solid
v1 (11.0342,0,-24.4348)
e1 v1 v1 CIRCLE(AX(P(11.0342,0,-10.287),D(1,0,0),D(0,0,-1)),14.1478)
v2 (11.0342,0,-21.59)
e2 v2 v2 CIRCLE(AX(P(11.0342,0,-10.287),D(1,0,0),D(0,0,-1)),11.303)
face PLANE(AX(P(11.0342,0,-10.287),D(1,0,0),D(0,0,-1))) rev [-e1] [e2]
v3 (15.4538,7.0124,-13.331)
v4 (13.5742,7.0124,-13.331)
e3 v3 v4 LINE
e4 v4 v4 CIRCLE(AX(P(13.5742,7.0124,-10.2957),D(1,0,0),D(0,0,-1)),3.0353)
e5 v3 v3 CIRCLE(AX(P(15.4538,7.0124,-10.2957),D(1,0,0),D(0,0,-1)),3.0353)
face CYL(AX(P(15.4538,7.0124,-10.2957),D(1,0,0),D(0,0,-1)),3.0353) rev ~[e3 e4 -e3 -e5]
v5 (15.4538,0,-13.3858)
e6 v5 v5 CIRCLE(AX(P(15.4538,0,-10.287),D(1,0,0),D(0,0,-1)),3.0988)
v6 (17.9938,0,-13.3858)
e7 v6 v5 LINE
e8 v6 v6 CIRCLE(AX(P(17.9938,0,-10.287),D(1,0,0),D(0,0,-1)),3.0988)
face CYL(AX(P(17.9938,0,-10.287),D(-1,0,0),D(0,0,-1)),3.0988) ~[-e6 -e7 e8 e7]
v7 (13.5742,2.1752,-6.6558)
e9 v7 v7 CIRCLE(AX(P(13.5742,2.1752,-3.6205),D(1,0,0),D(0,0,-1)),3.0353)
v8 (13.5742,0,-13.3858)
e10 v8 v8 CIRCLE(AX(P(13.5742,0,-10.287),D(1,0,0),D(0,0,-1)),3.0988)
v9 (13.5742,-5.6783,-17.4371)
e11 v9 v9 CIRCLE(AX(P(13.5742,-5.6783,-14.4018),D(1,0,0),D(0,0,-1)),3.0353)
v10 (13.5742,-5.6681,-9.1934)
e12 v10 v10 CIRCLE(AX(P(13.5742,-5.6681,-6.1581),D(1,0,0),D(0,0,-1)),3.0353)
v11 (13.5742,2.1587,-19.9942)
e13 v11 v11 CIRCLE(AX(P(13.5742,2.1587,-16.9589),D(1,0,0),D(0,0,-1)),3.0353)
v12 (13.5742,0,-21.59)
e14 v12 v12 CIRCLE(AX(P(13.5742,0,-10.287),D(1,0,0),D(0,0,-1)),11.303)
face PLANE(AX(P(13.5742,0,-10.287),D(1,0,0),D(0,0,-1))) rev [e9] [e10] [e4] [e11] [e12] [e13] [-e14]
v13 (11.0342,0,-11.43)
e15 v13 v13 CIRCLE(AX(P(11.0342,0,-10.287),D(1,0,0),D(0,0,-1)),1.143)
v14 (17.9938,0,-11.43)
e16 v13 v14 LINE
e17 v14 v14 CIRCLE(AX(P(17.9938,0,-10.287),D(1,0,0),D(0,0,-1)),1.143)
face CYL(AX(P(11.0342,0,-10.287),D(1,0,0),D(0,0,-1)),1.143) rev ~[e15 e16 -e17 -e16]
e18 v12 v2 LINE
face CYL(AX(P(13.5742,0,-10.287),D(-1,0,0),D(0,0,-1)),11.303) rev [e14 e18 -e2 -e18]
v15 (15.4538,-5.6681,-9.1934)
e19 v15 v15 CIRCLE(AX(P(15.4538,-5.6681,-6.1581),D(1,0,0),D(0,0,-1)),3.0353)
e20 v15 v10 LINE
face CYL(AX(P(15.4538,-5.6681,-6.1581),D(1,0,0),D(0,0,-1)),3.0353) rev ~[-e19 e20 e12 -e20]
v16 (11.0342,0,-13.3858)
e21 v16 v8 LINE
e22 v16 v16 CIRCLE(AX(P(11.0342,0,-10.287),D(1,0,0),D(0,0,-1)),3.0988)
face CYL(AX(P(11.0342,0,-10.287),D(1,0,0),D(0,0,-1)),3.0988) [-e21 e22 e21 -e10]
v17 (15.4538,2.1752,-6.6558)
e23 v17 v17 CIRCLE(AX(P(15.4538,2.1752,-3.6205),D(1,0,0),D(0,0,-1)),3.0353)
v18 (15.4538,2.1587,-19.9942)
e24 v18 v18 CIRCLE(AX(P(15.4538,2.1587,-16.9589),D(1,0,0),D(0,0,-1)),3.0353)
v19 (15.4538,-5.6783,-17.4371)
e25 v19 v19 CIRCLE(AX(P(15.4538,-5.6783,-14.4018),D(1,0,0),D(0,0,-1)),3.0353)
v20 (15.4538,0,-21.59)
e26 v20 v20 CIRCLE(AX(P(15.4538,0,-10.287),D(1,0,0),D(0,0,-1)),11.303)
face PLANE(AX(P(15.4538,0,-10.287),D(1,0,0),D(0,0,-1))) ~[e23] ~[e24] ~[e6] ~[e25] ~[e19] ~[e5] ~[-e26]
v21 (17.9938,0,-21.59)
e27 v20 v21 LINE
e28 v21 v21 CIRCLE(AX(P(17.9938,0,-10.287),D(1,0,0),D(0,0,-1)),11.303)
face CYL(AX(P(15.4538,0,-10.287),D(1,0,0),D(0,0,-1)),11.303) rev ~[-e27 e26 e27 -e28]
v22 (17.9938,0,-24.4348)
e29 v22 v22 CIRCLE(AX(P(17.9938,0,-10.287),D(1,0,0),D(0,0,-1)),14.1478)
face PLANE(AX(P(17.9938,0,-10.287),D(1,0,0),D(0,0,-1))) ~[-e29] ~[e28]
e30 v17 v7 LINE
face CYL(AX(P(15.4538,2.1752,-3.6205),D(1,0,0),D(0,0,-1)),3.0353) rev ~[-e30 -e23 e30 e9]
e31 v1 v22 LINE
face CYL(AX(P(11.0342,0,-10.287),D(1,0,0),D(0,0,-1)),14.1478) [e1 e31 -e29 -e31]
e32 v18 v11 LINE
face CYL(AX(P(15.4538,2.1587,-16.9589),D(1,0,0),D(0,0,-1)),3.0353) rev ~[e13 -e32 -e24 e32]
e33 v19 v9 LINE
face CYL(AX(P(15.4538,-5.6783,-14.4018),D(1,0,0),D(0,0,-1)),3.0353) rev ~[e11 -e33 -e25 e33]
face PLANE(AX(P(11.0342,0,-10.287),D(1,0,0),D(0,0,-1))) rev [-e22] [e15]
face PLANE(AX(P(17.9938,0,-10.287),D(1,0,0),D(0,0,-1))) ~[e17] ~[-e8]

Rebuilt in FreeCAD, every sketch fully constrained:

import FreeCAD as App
import Part
import Sketcher
from FreeCAD import Vector
Q = App.Units.Quantity


def add_polygon(sketch, points):
    """Adds a closed chain of lines whose ends are joined by coincident constraints."""
    first, n = sketch.GeometryCount, len(points)
    for a, b in zip(points, points[1:] + points[:1]):
        sketch.addGeometry(Part.LineSegment(App.Vector(*a, 0), App.Vector(*b, 0)), False)
    for i in range(n):
        sketch.addConstraint(Sketcher.Constraint("Coincident", first + i, 2, first + (i + 1) % n, 1))

doc = App.newDocument("Part")
body = doc.addObject("PartDesign::Body", "Body")

# Sketch on XZ plane
sketch1 = body.newObject("Sketcher::SketchObject", "Sketch")
sketch1.AttachmentSupport = (doc.getObject("XZ_Plane"), [""])
sketch1.MapMode = "FlatFace"
add_polygon(sketch1, [(11, -13.4), (11, -11.4), (18, -11.4), (18, -13.4), (15.5, -13.4), (15.5, -21.6), (18, -21.6), (18, -24.4), (11, -24.4), (11, -21.6), (13.6, -21.6), (13.6, -13.4)])  # lines 0-11
sketch1.addGeometry(Part.LineSegment(Vector(11, -10.3, 0), Vector(18, -10.3, 0)), True)  # axis
sketch1.addConstraint([
    Sketcher.Constraint("Vertical", 0),
    Sketcher.Constraint("Horizontal", 1),
    Sketcher.Constraint("Vertical", 2),
    Sketcher.Constraint("Horizontal", 3),
    Sketcher.Constraint("Vertical", 4),
    Sketcher.Constraint("Horizontal", 5),
    Sketcher.Constraint("Vertical", 6),
    Sketcher.Constraint("Horizontal", 7),
    Sketcher.Constraint("Vertical", 8),
    Sketcher.Constraint("Horizontal", 9),
    Sketcher.Constraint("Vertical", 10),
    Sketcher.Constraint("Horizontal", 11),
    Sketcher.Constraint("Horizontal", 12),
    Sketcher.Constraint("Horizontal", 5, 2, 8, 2),
    Sketcher.Constraint("Horizontal", 3, 2, 10, 2),
    Sketcher.Constraint("Vertical", 2, 2, 5, 2),
    Sketcher.Constraint("Vertical", 0, 2, 7, 2),
    Sketcher.Constraint("Vertical", 11, 2, 12, 1),
    Sketcher.Constraint("Vertical", 6, 2, 12, 2),
    Sketcher.Constraint("Equal", 5, 9),
    Sketcher.Constraint("DistanceX", 3, 2, 3, 1, Q("0.1 in")),
    Sketcher.Constraint("DistanceX", 1, 1, 1, 2, Q("0.274 in")),
    Sketcher.Constraint("DistanceY", 0, 1, 0, 2, Q("0.077 in")),
    Sketcher.Constraint("DistanceY", 4, 2, 4, 1, Q("0.323 in")),
    Sketcher.Constraint("DistanceY", 6, 2, 6, 1, Q("0.112 in")),
    Sketcher.Constraint("DistanceY", 0, 2, 12, 1, Q("0.045 in")),
    Sketcher.Constraint("DistanceY", 0, 2, -1, 1, Q("0.45 in")),
    Sketcher.Constraint("DistanceX", -1, 1, 0, 2, 11.0342),
])
revolution = body.newObject("PartDesign::Revolution", "Revolution")
revolution.Profile = sketch1
revolution.ReferenceAxis = (sketch1, ["Axis0"])
revolution.Angle = 360

# Sketch on YZ plane
sketch2 = body.newObject("Sketcher::SketchObject", "Sketch001")
sketch2.AttachmentSupport = (doc.getObject("YZ_Plane"), [""])
sketch2.MapMode = "FlatFace"
sketch2.AttachmentOffset = App.Placement(Vector(0, 0, 15.4538), App.Rotation())
sketch2.addGeometry([
    Part.Circle(Vector(7, -10.3, 0), Vector(0, 0, 1), 3),  # 0
    Part.Circle(Vector(2.2, -3.6, 0), Vector(0, 0, 1), 3),  # 1
    Part.Circle(Vector(-5.7, -6.2, 0), Vector(0, 0, 1), 3),  # 2
    Part.Circle(Vector(-5.7, -14.4, 0), Vector(0, 0, 1), 3),  # 3
    Part.Circle(Vector(2.2, -17, 0), Vector(0, 0, 1), 3),  # 4
], False)
sketch2.addConstraint([
    Sketcher.Constraint("Equal", 0, 1),
    Sketcher.Constraint("Equal", 1, 2),
    Sketcher.Constraint("Equal", 2, 3),
    Sketcher.Constraint("Equal", 3, 4),
    Sketcher.Constraint("Diameter", 0, Q("0.239 in")),
    Sketcher.Constraint("DistanceY", 3, 3, -1, 1, Q("0.567 in")),
    Sketcher.Constraint("DistanceX", -1, 1, 4, 3, Q("0.085 in")),
    Sketcher.Constraint("DistanceY", 0, 3, 1, 3, Q("0.2628 in")),
    Sketcher.Constraint("DistanceX", 2, 3, 1, 3, Q("0.3088 in")),
    Sketcher.Constraint("DistanceY", 2, 3, 1, 3, Q("0.0999 in")),
    Sketcher.Constraint("DistanceX", 3, 3, 2, 3, Q("0.0004 in")),
    Sketcher.Constraint("DistanceX", 4, 3, 0, 3, Q("0.1911 in")),
    Sketcher.Constraint("DistanceY", 0, 3, -1, 1, 10.2957),
    Sketcher.Constraint("DistanceX", -1, 1, 1, 3, 2.1752),
    Sketcher.Constraint("DistanceY", 4, 3, -1, 1, 16.959),
])
pocket1 = body.newObject("PartDesign::Pocket", "Pocket")
pocket1.Profile = sketch2
pocket1.Type = "ThroughAll"

doc.recompute()
